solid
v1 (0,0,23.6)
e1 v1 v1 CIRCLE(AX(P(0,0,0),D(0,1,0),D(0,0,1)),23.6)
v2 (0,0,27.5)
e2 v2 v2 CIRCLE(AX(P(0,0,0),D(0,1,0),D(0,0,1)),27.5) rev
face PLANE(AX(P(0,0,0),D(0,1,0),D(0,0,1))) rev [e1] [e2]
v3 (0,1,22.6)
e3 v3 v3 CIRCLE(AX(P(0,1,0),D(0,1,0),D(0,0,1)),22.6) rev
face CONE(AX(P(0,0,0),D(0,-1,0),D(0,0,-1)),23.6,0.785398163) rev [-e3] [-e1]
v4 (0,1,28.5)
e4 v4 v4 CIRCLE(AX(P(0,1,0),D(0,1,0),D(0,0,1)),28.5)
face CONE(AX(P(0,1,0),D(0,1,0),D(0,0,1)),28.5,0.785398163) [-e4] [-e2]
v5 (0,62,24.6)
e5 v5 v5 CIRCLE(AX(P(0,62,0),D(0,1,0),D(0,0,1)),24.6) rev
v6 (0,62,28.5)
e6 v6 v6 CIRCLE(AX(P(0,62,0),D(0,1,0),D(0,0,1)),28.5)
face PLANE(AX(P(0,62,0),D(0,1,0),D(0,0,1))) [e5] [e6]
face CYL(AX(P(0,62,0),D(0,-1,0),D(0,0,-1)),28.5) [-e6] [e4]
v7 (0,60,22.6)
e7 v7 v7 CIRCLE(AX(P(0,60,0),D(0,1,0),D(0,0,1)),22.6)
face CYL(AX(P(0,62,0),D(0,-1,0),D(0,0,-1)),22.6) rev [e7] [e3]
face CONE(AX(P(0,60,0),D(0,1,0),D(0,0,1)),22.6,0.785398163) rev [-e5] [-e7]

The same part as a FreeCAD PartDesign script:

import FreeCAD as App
import Part
import Sketcher

V = App.Vector


def edges_at(feature, points):
    """Names of the edges that pass closest to the given points."""
    edges = feature.Shape.Edges
    near = lambda p: min(range(len(edges)), key=lambda i: edges[i].distToShape(Part.Vertex(*p))[0])
    return sorted({f"Edge{near(p) + 1}" for p in points})

doc = App.newDocument("Part")
body = doc.addObject("PartDesign::Body", "Body")

sketch1 = body.newObject("Sketcher::SketchObject", "Sketch")
sketch1.AttachmentSupport = (doc.getObject("XZ_Plane"), [""])
sketch1.MapMode = "FlatFace"
sketch1.addGeometry([
    Part.Circle(V(0, 0, 0), V(0, 0, 1), 28.5),
    Part.Circle(V(0, 0, 0), V(0, 0, 1), 22.6),
], False)
sketch1.addConstraint([
    Sketcher.Constraint("Coincident", 0, 3, -1, 1),
    Sketcher.Constraint("Coincident", 1, 3, -1, 1),
    Sketcher.Constraint("Diameter", 0, 57.0),
    Sketcher.Constraint("Diameter", 1, 45.2),
])
pad1 = body.newObject("PartDesign::Pad", "Pad")
pad1.Profile = sketch1
pad1.Length = 62
pad1.Reversed = True
doc.recompute()

chamfer = body.newObject("PartDesign::Chamfer", "Chamfer")
chamfer.Base = (pad1, edges_at(pad1, [(0, 62, -22.6)]))
chamfer.Size = 2
doc.recompute()

chamfer2 = body.newObject("PartDesign::Chamfer", "Chamfer001")
chamfer2.Base = (chamfer, edges_at(chamfer, [(0, 0, -22.6)]))
chamfer2.Size = 1
doc.recompute()

chamfer3 = body.newObject("PartDesign::Chamfer", "Chamfer002")
chamfer3.Base = (chamfer2, edges_at(chamfer2, [(0, 0, -28.5)]))
chamfer3.Size = 1

doc.recompute()
